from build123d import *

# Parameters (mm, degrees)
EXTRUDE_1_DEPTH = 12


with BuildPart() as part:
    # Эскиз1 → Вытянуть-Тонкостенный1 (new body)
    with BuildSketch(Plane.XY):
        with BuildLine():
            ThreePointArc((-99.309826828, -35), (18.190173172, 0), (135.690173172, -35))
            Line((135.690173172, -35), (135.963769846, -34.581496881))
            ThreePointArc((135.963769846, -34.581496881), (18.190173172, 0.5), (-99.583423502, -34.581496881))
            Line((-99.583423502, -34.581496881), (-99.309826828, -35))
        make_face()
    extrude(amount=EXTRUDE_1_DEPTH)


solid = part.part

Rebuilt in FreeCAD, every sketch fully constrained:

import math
import FreeCAD as App
import Part
import Sketcher
Q = App.Units.Quantity

doc = App.newDocument("Part")
body = doc.addObject("PartDesign::Body", "Body")

# Sketch on XY plane
sketch1 = body.newObject("Sketcher::SketchObject", "Sketch")
sketch1.AttachmentSupport = (doc.getObject("XY_Plane"), [""])
sketch1.MapMode = "FlatFace"
sketch1.addGeometry(Part.ArcOfCircle(Part.Circle(App.Vector(18.2, -214.7, 0), App.Vector(0, 0, 1), 214.7), math.radians(57), math.radians(123)), False)
sketch1.addGeometry(Part.LineSegment(App.Vector(135.7, -35, 0), App.Vector(136, -34.6, 0)), False)
sketch1.addGeometry(Part.ArcOfCircle(Part.Circle(App.Vector(18.2, -214.7, 0), App.Vector(0, 0, 1), 215.2), math.radians(57), math.radians(123)), False)
sketch1.addGeometry(Part.LineSegment(App.Vector(-99.6, -34.6, 0), App.Vector(-99.3, -35, 0)), False)
sketch1.addConstraint(Sketcher.Constraint("Coincident", 0, 1, 1, 1))
sketch1.addConstraint(Sketcher.Constraint("Coincident", 1, 2, 2, 1))
sketch1.addConstraint(Sketcher.Constraint("Coincident", 2, 2, 3, 1))
sketch1.addConstraint(Sketcher.Constraint("Coincident", 3, 2, 0, 2))
sketch1.addConstraint(Sketcher.Constraint("Coincident", 2, 3, 0, 3))
sketch1.addConstraint(Sketcher.Constraint("Horizontal", 1, 2, 2, 2))
sketch1.addConstraint(Sketcher.Constraint("Horizontal", 0, 1, 3, 2))
sketch1.addConstraint(Sketcher.Constraint("DistanceY", 0, 1, -1, 1, Q("35 mm")))
sketch1.addConstraint(Sketcher.Constraint("DistanceX", 3, 2, 0, 1, Q("235 mm")))
sketch1.addConstraint(Sketcher.Constraint("Distance", 1, Q("0.5 mm")))
sketch1.addConstraint(Sketcher.Constraint("Radius", 0, Q("214.732143 mm")))
sketch1.addConstraint(Sketcher.Constraint("DistanceX", -1, 1, 1, 2, Q("135.96377 mm")))
sketch1.addConstraint(Sketcher.Constraint("DistanceX", -1, 1, 0, 3, Q("18.190173 mm")))
pad1 = body.newObject("PartDesign::Pad", "Pad")
pad1.Profile = sketch1
pad1.Length = 12

doc.recompute()
